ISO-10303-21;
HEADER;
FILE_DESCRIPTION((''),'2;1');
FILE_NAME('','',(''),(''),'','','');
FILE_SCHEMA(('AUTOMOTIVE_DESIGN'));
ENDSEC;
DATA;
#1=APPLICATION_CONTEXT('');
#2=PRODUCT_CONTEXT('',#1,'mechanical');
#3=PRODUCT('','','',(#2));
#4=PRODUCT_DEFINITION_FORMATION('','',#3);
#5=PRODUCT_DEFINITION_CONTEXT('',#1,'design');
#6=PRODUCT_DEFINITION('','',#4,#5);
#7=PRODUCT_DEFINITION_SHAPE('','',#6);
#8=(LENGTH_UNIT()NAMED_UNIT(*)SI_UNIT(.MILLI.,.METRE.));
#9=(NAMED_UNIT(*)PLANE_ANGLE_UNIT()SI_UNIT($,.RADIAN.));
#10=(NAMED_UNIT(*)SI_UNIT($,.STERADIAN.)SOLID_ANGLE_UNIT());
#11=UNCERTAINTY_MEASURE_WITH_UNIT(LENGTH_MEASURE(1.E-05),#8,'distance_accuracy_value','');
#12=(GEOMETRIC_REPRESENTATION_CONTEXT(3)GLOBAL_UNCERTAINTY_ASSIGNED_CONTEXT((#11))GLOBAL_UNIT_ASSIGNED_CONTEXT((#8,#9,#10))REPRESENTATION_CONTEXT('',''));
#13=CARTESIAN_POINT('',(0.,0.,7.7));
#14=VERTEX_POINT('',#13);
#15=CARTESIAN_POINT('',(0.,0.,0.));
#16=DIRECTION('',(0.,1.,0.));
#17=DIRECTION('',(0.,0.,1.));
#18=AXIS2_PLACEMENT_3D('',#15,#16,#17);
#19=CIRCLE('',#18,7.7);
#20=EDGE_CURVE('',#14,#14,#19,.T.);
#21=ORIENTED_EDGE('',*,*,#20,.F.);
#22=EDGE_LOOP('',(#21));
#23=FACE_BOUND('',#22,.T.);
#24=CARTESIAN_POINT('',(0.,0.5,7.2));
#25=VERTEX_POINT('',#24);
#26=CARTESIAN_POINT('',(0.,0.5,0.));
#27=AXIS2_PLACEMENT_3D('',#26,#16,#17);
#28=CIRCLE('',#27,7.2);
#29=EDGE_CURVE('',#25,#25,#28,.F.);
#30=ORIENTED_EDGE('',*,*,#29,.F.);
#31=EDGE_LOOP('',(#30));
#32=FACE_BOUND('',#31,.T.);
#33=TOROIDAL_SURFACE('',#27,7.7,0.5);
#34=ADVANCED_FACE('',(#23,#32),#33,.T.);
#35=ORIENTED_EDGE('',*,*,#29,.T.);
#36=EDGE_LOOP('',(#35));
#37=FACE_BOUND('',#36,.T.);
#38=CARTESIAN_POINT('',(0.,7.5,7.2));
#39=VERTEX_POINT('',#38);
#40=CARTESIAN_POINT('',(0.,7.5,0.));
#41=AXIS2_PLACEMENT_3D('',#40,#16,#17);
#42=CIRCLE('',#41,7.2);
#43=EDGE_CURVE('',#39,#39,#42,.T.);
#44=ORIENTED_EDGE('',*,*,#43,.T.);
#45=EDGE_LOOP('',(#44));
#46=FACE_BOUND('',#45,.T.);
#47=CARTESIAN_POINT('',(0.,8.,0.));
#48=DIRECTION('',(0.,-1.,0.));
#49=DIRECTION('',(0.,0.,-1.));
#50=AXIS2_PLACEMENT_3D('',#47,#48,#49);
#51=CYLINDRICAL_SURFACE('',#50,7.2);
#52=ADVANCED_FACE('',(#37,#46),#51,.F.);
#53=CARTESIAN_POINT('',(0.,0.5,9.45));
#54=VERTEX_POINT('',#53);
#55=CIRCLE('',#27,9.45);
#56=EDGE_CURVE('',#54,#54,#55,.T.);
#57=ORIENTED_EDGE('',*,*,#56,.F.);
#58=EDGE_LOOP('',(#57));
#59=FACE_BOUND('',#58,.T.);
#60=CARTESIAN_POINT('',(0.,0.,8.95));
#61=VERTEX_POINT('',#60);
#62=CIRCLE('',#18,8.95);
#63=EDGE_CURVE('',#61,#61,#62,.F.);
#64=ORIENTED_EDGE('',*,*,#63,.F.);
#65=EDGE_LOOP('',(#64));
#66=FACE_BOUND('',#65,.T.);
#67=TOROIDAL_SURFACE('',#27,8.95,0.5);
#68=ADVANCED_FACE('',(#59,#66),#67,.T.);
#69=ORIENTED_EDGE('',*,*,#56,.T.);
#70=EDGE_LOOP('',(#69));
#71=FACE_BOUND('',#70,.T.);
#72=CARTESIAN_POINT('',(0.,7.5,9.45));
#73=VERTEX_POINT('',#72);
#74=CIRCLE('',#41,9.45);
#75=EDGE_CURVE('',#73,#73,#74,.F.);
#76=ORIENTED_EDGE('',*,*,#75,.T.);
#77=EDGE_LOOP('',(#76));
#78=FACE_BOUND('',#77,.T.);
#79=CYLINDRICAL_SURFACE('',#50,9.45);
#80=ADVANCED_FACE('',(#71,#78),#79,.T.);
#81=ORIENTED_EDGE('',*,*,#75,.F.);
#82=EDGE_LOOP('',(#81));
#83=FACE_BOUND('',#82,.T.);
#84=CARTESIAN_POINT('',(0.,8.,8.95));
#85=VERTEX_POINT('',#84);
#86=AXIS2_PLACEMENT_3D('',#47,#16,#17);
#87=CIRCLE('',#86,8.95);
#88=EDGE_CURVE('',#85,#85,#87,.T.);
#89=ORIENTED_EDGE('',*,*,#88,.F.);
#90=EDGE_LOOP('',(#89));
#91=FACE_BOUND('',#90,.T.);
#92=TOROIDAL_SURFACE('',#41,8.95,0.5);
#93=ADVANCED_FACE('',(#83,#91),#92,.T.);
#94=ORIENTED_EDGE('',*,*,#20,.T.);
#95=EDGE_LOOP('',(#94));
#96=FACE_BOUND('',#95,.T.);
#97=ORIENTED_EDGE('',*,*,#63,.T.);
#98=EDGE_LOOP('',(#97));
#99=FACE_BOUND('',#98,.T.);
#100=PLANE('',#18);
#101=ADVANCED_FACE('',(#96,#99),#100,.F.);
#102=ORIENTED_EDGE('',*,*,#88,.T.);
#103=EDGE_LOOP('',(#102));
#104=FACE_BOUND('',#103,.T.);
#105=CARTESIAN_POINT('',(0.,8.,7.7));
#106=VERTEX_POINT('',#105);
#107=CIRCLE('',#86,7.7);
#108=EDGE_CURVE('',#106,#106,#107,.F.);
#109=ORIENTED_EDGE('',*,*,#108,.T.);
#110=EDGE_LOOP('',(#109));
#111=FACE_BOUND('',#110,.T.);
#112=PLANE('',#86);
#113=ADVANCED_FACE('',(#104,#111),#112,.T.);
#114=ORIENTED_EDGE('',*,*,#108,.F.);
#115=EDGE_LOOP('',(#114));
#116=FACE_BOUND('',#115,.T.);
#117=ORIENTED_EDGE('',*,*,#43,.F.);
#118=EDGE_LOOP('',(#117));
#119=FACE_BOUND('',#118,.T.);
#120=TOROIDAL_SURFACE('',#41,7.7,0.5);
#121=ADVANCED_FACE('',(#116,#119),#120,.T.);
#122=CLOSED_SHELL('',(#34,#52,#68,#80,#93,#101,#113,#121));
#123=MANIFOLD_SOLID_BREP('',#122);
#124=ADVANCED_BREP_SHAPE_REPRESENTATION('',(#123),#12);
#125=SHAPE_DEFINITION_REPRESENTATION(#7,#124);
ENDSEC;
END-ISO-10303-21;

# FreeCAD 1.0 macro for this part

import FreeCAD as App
import Part
import Sketcher
Q = App.Units.Quantity


def edges_at(feature, points):
    """Names of the edges that pass closest to the given points."""
    edges = feature.Shape.Edges
    near = lambda p: min(range(len(edges)), key=lambda i: edges[i].distToShape(Part.Vertex(*p))[0])
    return sorted({f"Edge{near(p) + 1}" for p in points})

doc = App.newDocument("Part")
body = doc.addObject("PartDesign::Body", "Body")

# Sketch on XZ plane
sketch1 = body.newObject("Sketcher::SketchObject", "Sketch")
sketch1.AttachmentSupport = (doc.getObject("XZ_Plane"), [""])
sketch1.MapMode = "FlatFace"
sketch1.addGeometry(Part.Circle(App.Vector(0, 0, 0), App.Vector(0, 0, 1), 9.45), False)
sketch1.addGeometry(Part.Circle(App.Vector(0, 0, 0), App.Vector(0, 0, 1), 7.2), False)
sketch1.addConstraint(Sketcher.Constraint("Coincident", 0, 3, -1, 1))
sketch1.addConstraint(Sketcher.Constraint("Coincident", 1, 3, -1, 1))
sketch1.addConstraint(Sketcher.Constraint("Diameter", 0, Q("18.9 mm")))
sketch1.addConstraint(Sketcher.Constraint("Diameter", 1, Q("14.4 mm")))
pad1 = body.newObject("PartDesign::Pad", "Pad")
pad1.Profile = sketch1
pad1.Length = 8
pad1.Reversed = True
doc.recompute()

fillet = body.newObject("PartDesign::Fillet", "Fillet")
fillet.Base = (pad1, edges_at(pad1, [
    (0, 0, -9.45),
    (0, 8, -9.45),
    (0, 0, -7.2),
    (0, 8, -7.2),
]))
fillet.Radius = 0.5

doc.recompute()
